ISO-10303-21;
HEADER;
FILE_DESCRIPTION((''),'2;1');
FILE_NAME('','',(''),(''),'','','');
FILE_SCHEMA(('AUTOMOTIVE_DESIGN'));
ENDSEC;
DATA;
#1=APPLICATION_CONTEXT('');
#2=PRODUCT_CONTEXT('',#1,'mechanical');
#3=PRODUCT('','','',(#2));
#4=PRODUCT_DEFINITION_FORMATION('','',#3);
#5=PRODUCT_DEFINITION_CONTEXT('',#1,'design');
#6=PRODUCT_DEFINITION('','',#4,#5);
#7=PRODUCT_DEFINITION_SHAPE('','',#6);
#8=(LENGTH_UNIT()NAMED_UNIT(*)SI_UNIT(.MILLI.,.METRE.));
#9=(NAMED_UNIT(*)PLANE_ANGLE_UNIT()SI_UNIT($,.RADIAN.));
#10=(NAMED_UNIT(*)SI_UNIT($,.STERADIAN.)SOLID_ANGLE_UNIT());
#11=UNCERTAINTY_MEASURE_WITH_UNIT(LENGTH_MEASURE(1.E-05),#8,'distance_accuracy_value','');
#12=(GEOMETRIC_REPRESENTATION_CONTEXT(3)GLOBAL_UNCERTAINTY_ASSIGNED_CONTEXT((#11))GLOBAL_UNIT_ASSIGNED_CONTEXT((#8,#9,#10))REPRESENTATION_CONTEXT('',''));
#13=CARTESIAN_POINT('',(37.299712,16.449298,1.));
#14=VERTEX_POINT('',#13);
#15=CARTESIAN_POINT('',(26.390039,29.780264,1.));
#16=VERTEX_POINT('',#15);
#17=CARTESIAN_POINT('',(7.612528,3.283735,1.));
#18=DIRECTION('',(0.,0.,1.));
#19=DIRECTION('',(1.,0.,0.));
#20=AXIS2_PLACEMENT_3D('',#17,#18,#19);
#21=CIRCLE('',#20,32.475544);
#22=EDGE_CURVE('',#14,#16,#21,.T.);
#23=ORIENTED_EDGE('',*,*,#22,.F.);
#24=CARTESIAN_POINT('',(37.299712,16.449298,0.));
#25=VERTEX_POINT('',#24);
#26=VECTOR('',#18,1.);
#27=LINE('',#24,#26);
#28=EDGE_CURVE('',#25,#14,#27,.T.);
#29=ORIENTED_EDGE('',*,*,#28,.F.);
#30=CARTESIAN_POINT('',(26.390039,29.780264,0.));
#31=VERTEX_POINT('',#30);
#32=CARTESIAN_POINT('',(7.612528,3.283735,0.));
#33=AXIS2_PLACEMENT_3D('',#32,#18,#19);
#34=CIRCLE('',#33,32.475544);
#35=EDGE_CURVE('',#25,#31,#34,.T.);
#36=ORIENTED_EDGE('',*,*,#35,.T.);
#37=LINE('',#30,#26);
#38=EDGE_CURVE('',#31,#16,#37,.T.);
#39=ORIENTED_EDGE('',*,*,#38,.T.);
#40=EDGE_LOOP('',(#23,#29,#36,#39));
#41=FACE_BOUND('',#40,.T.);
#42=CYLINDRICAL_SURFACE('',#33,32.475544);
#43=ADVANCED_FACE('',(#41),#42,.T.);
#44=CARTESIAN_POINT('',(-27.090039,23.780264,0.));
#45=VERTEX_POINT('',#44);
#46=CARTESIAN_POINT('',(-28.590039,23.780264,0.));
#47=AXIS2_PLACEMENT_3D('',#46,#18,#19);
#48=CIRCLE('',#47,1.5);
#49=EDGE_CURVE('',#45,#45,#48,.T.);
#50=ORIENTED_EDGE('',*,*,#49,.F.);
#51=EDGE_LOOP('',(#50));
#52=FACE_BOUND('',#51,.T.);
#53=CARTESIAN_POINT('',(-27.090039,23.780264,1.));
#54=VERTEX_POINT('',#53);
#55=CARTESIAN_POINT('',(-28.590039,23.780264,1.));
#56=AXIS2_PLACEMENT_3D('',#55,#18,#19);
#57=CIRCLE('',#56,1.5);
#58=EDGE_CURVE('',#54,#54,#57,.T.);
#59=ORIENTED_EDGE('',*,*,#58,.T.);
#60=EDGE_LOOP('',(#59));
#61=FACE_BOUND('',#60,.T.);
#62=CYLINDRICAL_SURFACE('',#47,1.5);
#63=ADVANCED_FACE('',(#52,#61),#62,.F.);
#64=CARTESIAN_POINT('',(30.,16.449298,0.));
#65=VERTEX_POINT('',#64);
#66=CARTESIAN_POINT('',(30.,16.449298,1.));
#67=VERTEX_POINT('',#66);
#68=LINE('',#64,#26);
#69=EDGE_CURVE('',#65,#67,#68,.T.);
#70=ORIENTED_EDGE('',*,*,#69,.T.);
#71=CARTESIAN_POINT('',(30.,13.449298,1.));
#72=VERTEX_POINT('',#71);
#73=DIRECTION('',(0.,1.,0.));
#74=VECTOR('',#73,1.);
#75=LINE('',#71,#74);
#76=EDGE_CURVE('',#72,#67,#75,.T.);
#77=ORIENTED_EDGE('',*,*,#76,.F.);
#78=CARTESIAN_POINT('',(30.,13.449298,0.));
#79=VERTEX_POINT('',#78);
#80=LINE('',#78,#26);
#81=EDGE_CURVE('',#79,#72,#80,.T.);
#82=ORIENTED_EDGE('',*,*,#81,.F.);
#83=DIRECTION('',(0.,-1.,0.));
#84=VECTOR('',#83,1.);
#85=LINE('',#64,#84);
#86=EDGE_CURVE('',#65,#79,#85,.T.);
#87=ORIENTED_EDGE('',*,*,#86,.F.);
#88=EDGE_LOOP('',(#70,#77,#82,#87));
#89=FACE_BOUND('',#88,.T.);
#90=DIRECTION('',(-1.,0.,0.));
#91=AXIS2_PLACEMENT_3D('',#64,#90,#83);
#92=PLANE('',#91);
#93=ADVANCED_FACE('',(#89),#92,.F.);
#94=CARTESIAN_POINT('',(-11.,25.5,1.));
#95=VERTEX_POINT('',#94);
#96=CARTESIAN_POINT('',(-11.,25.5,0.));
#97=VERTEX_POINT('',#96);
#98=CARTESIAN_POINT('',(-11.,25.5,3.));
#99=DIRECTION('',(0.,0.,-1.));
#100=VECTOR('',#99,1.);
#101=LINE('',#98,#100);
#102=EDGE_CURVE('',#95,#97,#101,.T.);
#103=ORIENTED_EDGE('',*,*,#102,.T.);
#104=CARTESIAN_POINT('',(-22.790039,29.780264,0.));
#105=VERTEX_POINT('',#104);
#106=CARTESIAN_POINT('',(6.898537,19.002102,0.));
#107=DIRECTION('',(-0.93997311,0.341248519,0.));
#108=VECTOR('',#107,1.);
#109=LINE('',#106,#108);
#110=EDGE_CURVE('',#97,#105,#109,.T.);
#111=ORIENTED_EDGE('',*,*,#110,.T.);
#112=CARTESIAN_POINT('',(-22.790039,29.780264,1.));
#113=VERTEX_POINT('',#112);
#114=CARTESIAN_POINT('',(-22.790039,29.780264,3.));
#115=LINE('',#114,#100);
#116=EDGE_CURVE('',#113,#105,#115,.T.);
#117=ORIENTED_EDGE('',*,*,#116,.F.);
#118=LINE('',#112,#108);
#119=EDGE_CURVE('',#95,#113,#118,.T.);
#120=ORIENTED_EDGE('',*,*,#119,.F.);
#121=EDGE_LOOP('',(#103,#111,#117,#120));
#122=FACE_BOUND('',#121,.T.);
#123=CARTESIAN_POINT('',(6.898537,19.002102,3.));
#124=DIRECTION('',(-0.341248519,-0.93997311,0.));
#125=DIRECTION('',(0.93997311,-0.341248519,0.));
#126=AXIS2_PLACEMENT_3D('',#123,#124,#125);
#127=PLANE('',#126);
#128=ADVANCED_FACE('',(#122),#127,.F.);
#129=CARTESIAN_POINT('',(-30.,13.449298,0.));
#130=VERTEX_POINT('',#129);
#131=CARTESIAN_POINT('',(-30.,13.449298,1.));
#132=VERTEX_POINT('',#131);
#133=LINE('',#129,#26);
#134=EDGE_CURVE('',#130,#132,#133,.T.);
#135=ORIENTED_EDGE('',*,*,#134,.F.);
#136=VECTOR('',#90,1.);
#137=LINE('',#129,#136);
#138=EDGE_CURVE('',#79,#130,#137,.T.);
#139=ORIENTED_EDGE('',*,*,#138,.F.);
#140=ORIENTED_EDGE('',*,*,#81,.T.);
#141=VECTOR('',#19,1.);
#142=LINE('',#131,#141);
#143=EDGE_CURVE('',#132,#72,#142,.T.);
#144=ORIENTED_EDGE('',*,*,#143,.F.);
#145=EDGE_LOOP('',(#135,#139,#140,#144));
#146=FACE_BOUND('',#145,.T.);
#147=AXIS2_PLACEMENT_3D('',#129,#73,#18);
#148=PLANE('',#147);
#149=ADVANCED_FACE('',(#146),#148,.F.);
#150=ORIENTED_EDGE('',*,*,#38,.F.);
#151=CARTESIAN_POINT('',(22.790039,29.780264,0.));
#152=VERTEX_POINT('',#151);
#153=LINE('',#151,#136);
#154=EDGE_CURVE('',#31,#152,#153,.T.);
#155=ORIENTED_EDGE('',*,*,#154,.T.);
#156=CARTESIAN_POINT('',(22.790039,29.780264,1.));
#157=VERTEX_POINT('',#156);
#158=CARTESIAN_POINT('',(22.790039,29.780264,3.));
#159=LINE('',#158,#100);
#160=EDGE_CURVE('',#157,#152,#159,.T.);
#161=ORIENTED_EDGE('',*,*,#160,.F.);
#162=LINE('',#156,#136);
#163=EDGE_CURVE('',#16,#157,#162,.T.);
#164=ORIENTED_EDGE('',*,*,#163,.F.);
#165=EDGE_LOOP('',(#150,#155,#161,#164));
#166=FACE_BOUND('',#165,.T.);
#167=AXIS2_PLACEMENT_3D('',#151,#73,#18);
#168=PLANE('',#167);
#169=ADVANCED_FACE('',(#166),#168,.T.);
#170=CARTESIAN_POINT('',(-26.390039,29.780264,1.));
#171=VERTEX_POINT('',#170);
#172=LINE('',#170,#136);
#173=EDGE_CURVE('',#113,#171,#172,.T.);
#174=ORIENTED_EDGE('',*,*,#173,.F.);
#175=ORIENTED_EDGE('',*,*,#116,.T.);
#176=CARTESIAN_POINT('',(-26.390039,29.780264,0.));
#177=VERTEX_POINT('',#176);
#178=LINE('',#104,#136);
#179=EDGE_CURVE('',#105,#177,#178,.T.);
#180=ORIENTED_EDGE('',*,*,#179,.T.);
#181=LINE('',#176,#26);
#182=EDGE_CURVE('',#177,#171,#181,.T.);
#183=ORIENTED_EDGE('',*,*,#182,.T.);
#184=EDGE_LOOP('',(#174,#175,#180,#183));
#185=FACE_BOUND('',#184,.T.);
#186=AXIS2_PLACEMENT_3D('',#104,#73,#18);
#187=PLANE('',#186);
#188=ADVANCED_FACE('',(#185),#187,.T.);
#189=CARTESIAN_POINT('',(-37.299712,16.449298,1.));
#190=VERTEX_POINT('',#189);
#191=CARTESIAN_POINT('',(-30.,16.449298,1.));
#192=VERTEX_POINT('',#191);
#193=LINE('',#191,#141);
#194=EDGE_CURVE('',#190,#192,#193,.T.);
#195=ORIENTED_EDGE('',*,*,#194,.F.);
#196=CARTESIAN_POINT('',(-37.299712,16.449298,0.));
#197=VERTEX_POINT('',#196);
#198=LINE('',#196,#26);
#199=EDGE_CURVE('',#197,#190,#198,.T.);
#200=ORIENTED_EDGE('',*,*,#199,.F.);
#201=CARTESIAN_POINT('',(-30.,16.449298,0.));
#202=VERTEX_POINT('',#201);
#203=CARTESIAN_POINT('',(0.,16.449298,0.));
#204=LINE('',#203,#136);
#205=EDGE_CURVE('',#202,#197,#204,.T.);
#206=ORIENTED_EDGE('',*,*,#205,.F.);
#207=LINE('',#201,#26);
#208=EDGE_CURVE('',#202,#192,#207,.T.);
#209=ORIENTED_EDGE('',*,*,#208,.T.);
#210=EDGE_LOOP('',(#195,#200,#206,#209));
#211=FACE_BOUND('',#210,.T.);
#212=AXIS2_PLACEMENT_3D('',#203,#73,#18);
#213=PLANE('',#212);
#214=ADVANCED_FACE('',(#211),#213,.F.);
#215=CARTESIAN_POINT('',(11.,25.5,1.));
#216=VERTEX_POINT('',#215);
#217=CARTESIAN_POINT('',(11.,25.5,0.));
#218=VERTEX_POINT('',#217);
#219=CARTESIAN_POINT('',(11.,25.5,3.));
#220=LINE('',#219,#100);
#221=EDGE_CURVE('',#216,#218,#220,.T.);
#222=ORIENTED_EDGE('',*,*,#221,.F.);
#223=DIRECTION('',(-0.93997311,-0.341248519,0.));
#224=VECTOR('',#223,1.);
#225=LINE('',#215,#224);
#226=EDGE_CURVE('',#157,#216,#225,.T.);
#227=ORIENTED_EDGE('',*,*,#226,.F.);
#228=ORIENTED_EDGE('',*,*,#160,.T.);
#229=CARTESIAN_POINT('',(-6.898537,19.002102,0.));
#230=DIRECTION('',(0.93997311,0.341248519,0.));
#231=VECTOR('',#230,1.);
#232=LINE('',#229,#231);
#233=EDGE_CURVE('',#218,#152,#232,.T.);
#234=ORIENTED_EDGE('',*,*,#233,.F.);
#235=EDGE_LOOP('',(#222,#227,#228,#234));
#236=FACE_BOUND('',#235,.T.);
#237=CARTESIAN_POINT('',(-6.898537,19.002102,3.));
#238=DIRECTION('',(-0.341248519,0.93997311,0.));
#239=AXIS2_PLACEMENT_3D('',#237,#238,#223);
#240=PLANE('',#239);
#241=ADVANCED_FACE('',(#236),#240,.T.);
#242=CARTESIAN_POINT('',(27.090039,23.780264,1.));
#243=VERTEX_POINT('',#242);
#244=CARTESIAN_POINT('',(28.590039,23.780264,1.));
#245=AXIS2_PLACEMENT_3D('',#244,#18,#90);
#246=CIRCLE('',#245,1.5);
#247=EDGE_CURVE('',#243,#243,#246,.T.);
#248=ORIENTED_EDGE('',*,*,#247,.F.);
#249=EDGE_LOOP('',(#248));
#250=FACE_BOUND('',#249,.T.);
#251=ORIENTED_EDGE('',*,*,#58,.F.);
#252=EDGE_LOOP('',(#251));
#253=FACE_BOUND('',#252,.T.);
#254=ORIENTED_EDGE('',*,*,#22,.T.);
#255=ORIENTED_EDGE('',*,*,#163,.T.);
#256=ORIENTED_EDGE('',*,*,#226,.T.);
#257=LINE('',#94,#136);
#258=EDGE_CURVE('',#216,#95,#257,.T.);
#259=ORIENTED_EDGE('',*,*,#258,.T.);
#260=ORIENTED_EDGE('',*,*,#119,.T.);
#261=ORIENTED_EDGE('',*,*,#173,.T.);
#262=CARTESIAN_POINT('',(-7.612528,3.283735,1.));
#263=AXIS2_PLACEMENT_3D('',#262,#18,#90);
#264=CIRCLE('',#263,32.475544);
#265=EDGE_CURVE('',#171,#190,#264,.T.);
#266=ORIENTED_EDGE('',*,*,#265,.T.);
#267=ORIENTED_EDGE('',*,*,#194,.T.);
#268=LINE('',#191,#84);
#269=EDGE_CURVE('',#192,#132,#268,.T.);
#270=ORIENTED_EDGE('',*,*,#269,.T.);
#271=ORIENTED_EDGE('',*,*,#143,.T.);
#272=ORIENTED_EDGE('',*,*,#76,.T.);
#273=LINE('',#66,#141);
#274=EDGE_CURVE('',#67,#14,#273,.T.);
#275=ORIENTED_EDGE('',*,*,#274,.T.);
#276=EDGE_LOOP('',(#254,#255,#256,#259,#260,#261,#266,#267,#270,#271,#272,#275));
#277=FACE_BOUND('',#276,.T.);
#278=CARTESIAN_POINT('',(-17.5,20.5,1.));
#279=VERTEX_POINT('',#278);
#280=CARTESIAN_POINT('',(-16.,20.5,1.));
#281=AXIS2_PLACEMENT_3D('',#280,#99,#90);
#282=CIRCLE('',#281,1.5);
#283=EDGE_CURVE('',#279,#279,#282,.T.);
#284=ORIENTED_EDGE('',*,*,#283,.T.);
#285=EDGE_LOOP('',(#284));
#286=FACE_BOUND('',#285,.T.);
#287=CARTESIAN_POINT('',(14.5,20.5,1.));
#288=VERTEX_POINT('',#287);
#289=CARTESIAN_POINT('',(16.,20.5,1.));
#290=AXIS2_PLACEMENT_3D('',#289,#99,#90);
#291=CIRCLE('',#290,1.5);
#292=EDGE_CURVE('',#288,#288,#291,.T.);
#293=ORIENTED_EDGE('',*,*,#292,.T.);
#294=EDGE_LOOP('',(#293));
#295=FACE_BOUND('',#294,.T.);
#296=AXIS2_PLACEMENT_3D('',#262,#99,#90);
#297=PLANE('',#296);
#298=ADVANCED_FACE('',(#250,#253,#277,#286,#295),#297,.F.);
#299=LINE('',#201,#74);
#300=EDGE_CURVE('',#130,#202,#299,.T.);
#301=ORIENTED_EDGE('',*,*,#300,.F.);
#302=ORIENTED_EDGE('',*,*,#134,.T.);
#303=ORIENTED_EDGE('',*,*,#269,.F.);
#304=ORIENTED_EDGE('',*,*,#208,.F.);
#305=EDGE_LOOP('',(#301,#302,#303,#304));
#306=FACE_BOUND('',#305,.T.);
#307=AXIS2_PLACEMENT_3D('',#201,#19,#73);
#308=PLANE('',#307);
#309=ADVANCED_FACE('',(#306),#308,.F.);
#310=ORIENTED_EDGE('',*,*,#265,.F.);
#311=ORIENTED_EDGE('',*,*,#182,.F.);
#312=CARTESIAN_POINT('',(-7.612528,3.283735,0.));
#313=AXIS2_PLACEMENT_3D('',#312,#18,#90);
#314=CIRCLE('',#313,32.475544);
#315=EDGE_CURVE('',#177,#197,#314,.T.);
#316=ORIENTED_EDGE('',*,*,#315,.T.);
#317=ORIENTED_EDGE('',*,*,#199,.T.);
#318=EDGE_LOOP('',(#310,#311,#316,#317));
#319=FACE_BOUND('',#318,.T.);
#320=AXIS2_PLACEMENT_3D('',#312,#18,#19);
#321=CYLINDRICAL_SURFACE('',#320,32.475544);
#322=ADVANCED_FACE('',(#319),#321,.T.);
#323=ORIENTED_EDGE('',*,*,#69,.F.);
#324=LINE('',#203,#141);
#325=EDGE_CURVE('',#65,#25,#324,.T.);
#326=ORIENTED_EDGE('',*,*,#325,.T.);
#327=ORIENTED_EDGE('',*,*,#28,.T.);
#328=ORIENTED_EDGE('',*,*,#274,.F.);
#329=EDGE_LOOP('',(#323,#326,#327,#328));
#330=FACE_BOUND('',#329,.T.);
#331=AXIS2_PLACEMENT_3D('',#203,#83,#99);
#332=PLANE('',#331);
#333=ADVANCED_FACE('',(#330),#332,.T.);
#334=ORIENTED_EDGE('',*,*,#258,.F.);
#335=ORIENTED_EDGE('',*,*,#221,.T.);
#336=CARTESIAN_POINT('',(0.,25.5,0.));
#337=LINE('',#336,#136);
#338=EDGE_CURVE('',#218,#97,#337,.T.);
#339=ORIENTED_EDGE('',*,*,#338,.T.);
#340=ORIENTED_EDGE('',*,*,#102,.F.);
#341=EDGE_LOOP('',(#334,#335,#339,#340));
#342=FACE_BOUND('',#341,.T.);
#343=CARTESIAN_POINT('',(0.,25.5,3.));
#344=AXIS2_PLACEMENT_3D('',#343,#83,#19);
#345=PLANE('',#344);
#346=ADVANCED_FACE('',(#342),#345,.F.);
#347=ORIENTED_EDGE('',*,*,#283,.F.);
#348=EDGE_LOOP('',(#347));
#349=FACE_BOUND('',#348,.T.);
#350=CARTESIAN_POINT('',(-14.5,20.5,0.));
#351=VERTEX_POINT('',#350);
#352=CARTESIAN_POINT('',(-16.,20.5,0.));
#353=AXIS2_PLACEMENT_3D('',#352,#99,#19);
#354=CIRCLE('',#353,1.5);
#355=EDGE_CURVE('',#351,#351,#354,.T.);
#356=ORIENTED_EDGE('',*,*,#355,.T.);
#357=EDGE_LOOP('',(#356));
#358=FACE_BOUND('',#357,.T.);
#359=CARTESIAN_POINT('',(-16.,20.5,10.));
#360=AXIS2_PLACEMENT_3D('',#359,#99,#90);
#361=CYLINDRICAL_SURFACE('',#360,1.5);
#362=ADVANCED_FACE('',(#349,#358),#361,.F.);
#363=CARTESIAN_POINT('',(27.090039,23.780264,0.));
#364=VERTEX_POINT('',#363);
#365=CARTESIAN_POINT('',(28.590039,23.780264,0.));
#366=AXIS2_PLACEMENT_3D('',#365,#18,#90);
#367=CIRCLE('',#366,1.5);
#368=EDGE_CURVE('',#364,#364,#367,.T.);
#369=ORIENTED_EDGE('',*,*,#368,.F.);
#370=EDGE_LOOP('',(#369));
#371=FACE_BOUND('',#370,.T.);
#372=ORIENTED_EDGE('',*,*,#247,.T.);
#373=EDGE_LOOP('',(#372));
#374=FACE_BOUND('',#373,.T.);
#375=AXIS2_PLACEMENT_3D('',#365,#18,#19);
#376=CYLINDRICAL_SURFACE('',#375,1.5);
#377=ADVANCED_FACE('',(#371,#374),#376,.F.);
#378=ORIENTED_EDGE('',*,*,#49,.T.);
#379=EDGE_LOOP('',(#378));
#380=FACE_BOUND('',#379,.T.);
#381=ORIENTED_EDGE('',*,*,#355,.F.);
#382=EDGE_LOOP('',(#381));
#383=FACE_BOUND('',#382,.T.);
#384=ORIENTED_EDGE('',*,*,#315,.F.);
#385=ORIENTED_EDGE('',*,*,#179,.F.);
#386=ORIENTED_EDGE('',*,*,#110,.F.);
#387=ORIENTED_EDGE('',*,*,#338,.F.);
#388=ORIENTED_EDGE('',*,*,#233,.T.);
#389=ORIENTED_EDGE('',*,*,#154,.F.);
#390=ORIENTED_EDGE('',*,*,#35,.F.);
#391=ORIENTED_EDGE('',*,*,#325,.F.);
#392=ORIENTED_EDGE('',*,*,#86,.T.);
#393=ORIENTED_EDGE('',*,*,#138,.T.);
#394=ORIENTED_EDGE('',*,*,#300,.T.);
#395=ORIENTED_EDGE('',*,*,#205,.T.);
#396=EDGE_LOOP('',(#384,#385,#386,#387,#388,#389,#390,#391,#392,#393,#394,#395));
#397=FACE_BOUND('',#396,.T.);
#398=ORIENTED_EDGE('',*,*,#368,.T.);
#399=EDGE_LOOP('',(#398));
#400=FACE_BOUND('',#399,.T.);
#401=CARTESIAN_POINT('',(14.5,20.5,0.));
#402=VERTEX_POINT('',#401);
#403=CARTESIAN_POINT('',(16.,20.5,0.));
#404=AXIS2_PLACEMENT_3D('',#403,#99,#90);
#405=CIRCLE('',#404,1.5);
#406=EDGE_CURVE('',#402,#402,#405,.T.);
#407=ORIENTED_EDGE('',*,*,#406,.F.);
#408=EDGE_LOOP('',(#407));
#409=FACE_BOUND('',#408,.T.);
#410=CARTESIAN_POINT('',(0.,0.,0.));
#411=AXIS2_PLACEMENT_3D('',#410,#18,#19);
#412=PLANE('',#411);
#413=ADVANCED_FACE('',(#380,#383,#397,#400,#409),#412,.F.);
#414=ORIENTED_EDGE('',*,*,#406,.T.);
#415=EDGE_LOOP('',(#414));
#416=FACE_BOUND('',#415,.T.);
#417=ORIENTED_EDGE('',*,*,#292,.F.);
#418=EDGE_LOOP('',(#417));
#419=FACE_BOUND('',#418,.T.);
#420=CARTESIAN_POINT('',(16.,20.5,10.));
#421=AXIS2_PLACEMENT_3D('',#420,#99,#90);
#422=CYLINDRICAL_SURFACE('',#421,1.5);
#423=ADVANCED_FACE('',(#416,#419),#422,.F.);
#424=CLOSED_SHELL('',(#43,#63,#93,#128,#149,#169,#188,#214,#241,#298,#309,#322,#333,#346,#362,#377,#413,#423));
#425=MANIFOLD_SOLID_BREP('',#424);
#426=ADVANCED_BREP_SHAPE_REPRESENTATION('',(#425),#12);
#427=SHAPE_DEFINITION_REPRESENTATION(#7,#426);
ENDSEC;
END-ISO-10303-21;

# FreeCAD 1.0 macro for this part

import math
import FreeCAD as App
import Part
import Sketcher

V = App.Vector
Q = App.Units.Quantity


def add_polygon(sketch, points):
    """Adds a closed chain of lines whose ends are joined by coincident constraints."""
    first, n = sketch.GeometryCount, len(points)
    for a, b in zip(points, points[1:] + points[:1]):
        sketch.addGeometry(Part.LineSegment(App.Vector(*a, 0), App.Vector(*b, 0)), False)
    for i in range(n):
        sketch.addConstraint(Sketcher.Constraint("Coincident", first + i, 2, first + (i + 1) % n, 1))

doc = App.newDocument("Part")
body = doc.addObject("PartDesign::Body", "Body")

# Sketch on XY plane
sketch1 = body.newObject("Sketcher::SketchObject", "Sketch")
sketch1.AttachmentSupport = (doc.getObject("XY_Plane"), [""])
sketch1.MapMode = "FlatFace"
sketch1.addGeometry(Part.LineSegment(V(-11, 26, 0), V(-23, 30, 0)), False)
sketch1.addGeometry(Part.ArcOfCircle(Part.Circle(V(0, 0, 0), V(0, 0, 1), 38), math.radians(127), math.radians(413)), False)
sketch1.addGeometry(Part.LineSegment(V(23, 30, 0), V(11, 26, 0)), False)
sketch1.addGeometry(Part.LineSegment(V(11, 26, 0), V(-11, 26, 0)), False)
sketch1.addConstraint(Sketcher.Constraint("Coincident", 0, 2, 1, 1))
sketch1.addConstraint(Sketcher.Constraint("Coincident", 1, 2, 2, 1))
sketch1.addConstraint(Sketcher.Constraint("Coincident", 2, 2, 3, 1))
sketch1.addConstraint(Sketcher.Constraint("Coincident", 3, 2, 0, 1))
sketch1.addConstraint(Sketcher.Constraint("Horizontal", 3))
sketch1.addConstraint(Sketcher.Constraint("Coincident", 1, 3, -1, 1))
sketch1.addConstraint(Sketcher.Constraint("Horizontal", 0, 2, 1, 2))
sketch1.addConstraint(Sketcher.Constraint("Equal", 0, 2))
sketch1.addConstraint(Sketcher.Constraint("Radius", 1, Q("37.5 mm")))
sketch1.addConstraint(Sketcher.Constraint("DistanceX", 3, 2, 3, 1, Q("22 mm")))
sketch1.addConstraint(Sketcher.Constraint("DistanceY", -1, 1, 2, 2, Q("25.5 mm")))
sketch1.addConstraint(Sketcher.Constraint("DistanceX", 0, 2, -1, 1, Q("22.790039 mm")))
pad1 = body.newObject("PartDesign::Pad", "Pad")
pad1.Profile = sketch1
pad1.Length = 3

# Sketch on XY plane
sketch2 = body.newObject("Sketcher::SketchObject", "Sketch001")
sketch2.AttachmentSupport = (doc.getObject("XY_Plane"), [""])
sketch2.MapMode = "FlatFace"
sketch2.AttachmentOffset = App.Placement(V(0, 0, 3), App.Rotation())
sketch2.addGeometry(Part.Circle(V(-25.4, 10.5, 0), V(0, 0, 1), 1.5), False)
sketch2.addGeometry(Part.Circle(V(-25.4, -10.5, 0), V(0, 0, 1), 1.5), False)
sketch2.addGeometry(Part.Circle(V(25.4, -10.5, 0), V(0, 0, 1), 1.5), False)
sketch2.addGeometry(Part.Circle(V(25.4, 10.5, 0), V(0, 0, 1), 1.5), False)
sketch2.addConstraint(Sketcher.Constraint("Equal", 0, 1))
sketch2.addConstraint(Sketcher.Constraint("Equal", 1, 2))
sketch2.addConstraint(Sketcher.Constraint("Equal", 2, 3))
sketch2.addConstraint(Sketcher.Constraint("Symmetric", 1, 3, 2, 3, -2))
sketch2.addConstraint(Sketcher.Constraint("Symmetric", 0, 3, 3, 3, -2))
sketch2.addConstraint(Sketcher.Constraint("Diameter", 0, Q("3 mm")))
sketch2.addConstraint(Sketcher.Constraint("DistanceX", 0, 3, -1, 1, Q("25.4 mm")))
sketch2.addConstraint(Sketcher.Constraint("DistanceY", 1, 3, 0, 3, Q("20.99 mm")))
sketch2.addConstraint(Sketcher.Constraint("DistanceX", 1, 3, -1, 1, Q("25.399982 mm")))
sketch2.addConstraint(Sketcher.Constraint("DistanceY", -1, 1, 0, 3, Q("10.496905 mm")))
pocket1 = body.newObject("PartDesign::Pocket", "Pocket")
pocket1.Profile = sketch2
pocket1.Length = 3

# Sketch on XY plane
sketch3 = body.newObject("Sketcher::SketchObject", "Sketch002")
sketch3.AttachmentSupport = (doc.getObject("XY_Plane"), [""])
sketch3.MapMode = "FlatFace"
sketch3.AttachmentOffset = App.Placement(V(0, 0, -7), App.Rotation())
sketch3.addGeometry(Part.LineSegment(V(-31, -21, 0), V(-31, 21, 0)), False)
sketch3.addGeometry(Part.ArcOfCircle(Part.Circle(V(0, 0, 0), V(0, 0, 1), 38), math.radians(145), math.radians(215)), False)
sketch3.addGeometry(Part.LineSegment(V(31, 21, 0), V(31, -21, 0)), False)
sketch3.addGeometry(Part.ArcOfCircle(Part.Circle(V(0, 0, 0), V(0, 0, 1), 38), math.radians(-35), math.radians(35)), False)
sketch3.addConstraint(Sketcher.Constraint("Coincident", 0, 1, 1, 2))
sketch3.addConstraint(Sketcher.Constraint("Coincident", 1, 1, 0, 2))
sketch3.addConstraint(Sketcher.Constraint("Coincident", 2, 1, 3, 2))
sketch3.addConstraint(Sketcher.Constraint("Coincident", 3, 1, 2, 2))
sketch3.addConstraint(Sketcher.Constraint("Vertical", 0))
sketch3.addConstraint(Sketcher.Constraint("Vertical", 2))
sketch3.addConstraint(Sketcher.Constraint("Coincident", 1, 3, -1, 1))
sketch3.addConstraint(Sketcher.Constraint("Coincident", 3, 3, -1, 1))
sketch3.addConstraint(Sketcher.Constraint("Equal", 1, 3))
sketch3.addConstraint(Sketcher.Constraint("Horizontal", 1, 1, 2, 1))
sketch3.addConstraint(Sketcher.Constraint("Radius", 1, Q("37.5 mm")))
sketch3.addConstraint(Sketcher.Constraint("DistanceX", 0, 1, -1, 1, Q("30.76 mm")))
pocket2 = body.newObject("PartDesign::Pocket", "Pocket001")
pocket2.Profile = sketch3
pocket2.Length = 10
pocket2.Reversed = True

# Sketch on XY plane
sketch4 = body.newObject("Sketcher::SketchObject", "Sketch003")
sketch4.AttachmentSupport = (doc.getObject("XY_Plane"), [""])
sketch4.MapMode = "FlatFace"
sketch4.addGeometry(Part.LineSegment(V(-30.8, -21.4, 0), V(-30.8, -16.4, 0)), False)
sketch4.addGeometry(Part.LineSegment(V(-30.8, -16.4, 0), V(-33.7, -16.4, 0)), False)
sketch4.addGeometry(Part.ArcOfCircle(Part.Circle(V(0, 0, 0), V(0, 0, 1), 37.5), math.radians(-153.98), math.radians(-145.11)), False)
sketch4.addGeometry(Part.LineSegment(V(-33.7, 16.4, 0), V(-30.8, 16.4, 0)), False)
sketch4.addGeometry(Part.LineSegment(V(-30.8, 16.4, 0), V(-30.8, 21.4, 0)), False)
sketch4.addGeometry(Part.ArcOfCircle(Part.Circle(V(0, 0, 0), V(0, 0, 1), 37.5), math.radians(145.11), math.radians(153.98)), False)
sketch4.addGeometry(Part.LineSegment(V(30.8, 21.4, 0), V(30.8, 16.4, 0)), False)
sketch4.addGeometry(Part.LineSegment(V(30.8, 16.4, 0), V(33.7, 16.4, 0)), False)
sketch4.addGeometry(Part.ArcOfCircle(Part.Circle(V(0, 0, 0), V(0, 0, 1), 37.5), math.radians(26.02), math.radians(34.89)), False)
sketch4.addGeometry(Part.LineSegment(V(30.8, -16.4, 0), V(30.8, -21.4, 0)), False)
sketch4.addGeometry(Part.ArcOfCircle(Part.Circle(V(0, 0, 0), V(0, 0, 1), 37.5), math.radians(-34.89), math.radians(-26.02)), False)
sketch4.addGeometry(Part.LineSegment(V(33.7, -16.4, 0), V(30.8, -16.4, 0)), False)
sketch4.addConstraint(Sketcher.Constraint("Coincident", 0, 2, 1, 1))
sketch4.addConstraint(Sketcher.Constraint("Coincident", 1, 2, 2, 1))
sketch4.addConstraint(Sketcher.Constraint("Coincident", 2, 2, 0, 1))
sketch4.addConstraint(Sketcher.Constraint("Coincident", 3, 2, 4, 1))
sketch4.addConstraint(Sketcher.Constraint("Coincident", 4, 2, 5, 1))
sketch4.addConstraint(Sketcher.Constraint("Coincident", 5, 2, 3, 1))
sketch4.addConstraint(Sketcher.Constraint("Coincident", 6, 2, 7, 1))
sketch4.addConstraint(Sketcher.Constraint("Coincident", 7, 2, 8, 1))
sketch4.addConstraint(Sketcher.Constraint("Coincident", 8, 2, 6, 1))
sketch4.addConstraint(Sketcher.Constraint("Coincident", 9, 2, 10, 1))
sketch4.addConstraint(Sketcher.Constraint("Coincident", 10, 2, 11, 1))
sketch4.addConstraint(Sketcher.Constraint("Coincident", 11, 2, 9, 1))
sketch4.addConstraint(Sketcher.Constraint("Vertical", 0))
sketch4.addConstraint(Sketcher.Constraint("Horizontal", 1))
sketch4.addConstraint(Sketcher.Constraint("Horizontal", 3))
sketch4.addConstraint(Sketcher.Constraint("Vertical", 4))
sketch4.addConstraint(Sketcher.Constraint("Vertical", 6))
sketch4.addConstraint(Sketcher.Constraint("Horizontal", 7))
sketch4.addConstraint(Sketcher.Constraint("Vertical", 9))
sketch4.addConstraint(Sketcher.Constraint("Horizontal", 11))
sketch4.addConstraint(Sketcher.Constraint("Coincident", 2, 3, -1, 1))
sketch4.addConstraint(Sketcher.Constraint("Coincident", 5, 3, -1, 1))
sketch4.addConstraint(Sketcher.Constraint("Coincident", 8, 3, -1, 1))
sketch4.addConstraint(Sketcher.Constraint("Coincident", 10, 3, -1, 1))
sketch4.addConstraint(Sketcher.Constraint("Equal", 2, 5))
sketch4.addConstraint(Sketcher.Constraint("Equal", 5, 8))
sketch4.addConstraint(Sketcher.Constraint("Equal", 8, 10))
sketch4.addConstraint(Sketcher.Constraint("Symmetric", 0, 2, 6, 2, -1, 1))
sketch4.addConstraint(Sketcher.Constraint("Symmetric", 3, 2, 11, 2, -1, 1))
sketch4.addConstraint(Sketcher.Constraint("Symmetric", 3, 2, 6, 2, -2))
sketch4.addConstraint(Sketcher.Constraint("Radius", 2, Q("37.5 mm")))
sketch4.addConstraint(Sketcher.Constraint("DistanceY", 0, 1, 0, 2, Q("5 mm")))
sketch4.addConstraint(Sketcher.Constraint("DistanceX", 0, 2, -1, 1, Q("30.76 mm")))
pad2 = body.newObject("PartDesign::Pad", "Pad001")
pad2.Profile = sketch4
pad2.Length = 3

# Sketch on XY plane
sketch5 = body.newObject("Sketcher::SketchObject", "Sketch004")
sketch5.AttachmentSupport = (doc.getObject("XY_Plane"), [""])
sketch5.MapMode = "FlatFace"
sketch5.AttachmentOffset = App.Placement(V(0, 0, 3), App.Rotation())
add_polygon(sketch5, [(-30.8, 16.4), (-30.8, -16.4), (-30.2, -16.4), (-30.2, 16.4)])  # lines 0-3
add_polygon(sketch5, [(30.2, 16.4), (30.2, -16.4), (30.8, -16.4), (30.8, 16.4)])  # lines 4-7
sketch5.addConstraint(Sketcher.Constraint("Vertical", 0))
sketch5.addConstraint(Sketcher.Constraint("Horizontal", 1))
sketch5.addConstraint(Sketcher.Constraint("Vertical", 2))
sketch5.addConstraint(Sketcher.Constraint("Horizontal", 3))
sketch5.addConstraint(Sketcher.Constraint("Vertical", 4))
sketch5.addConstraint(Sketcher.Constraint("Horizontal", 5))
sketch5.addConstraint(Sketcher.Constraint("Vertical", 6))
sketch5.addConstraint(Sketcher.Constraint("Horizontal", 7))
sketch5.addConstraint(Sketcher.Constraint("Symmetric", 2, 2, 4, 2, -1, 1))
sketch5.addConstraint(Sketcher.Constraint("Symmetric", 0, 2, 6, 2, -1, 1))
sketch5.addConstraint(Sketcher.Constraint("Horizontal", 1, 2, 4, 2))
sketch5.addConstraint(Sketcher.Constraint("DistanceX", 1, 1, 1, 2, Q("0.56 mm")))
sketch5.addConstraint(Sketcher.Constraint("DistanceX", 1, 2, -1, 1, Q("30.2 mm")))
sketch5.addConstraint(Sketcher.Constraint("DistanceY", 0, 2, -1, 1, Q("16.449298 mm")))
pocket3 = body.newObject("PartDesign::Pocket", "Pocket002")
pocket3.Profile = sketch5
pocket3.Length = 3

# Sketch on XY plane
sketch6 = body.newObject("Sketcher::SketchObject", "Sketch005")
sketch6.AttachmentSupport = (doc.getObject("XY_Plane"), [""])
sketch6.MapMode = "FlatFace"
sketch6.AttachmentOffset = App.Placement(V(0, 0, 3), App.Rotation())
add_polygon(sketch6, [(-30.2, 16.45), (-30.2, -16.45), (-30, -16.45), (-30, 16.45)])  # lines 0-3
add_polygon(sketch6, [(30, 16.45), (30, -16.45), (30.2, -16.45), (30.2, 16.45)])  # lines 4-7
sketch6.addConstraint(Sketcher.Constraint("Vertical", 0))
sketch6.addConstraint(Sketcher.Constraint("Horizontal", 1))
sketch6.addConstraint(Sketcher.Constraint("Vertical", 2))
sketch6.addConstraint(Sketcher.Constraint("Horizontal", 3))
sketch6.addConstraint(Sketcher.Constraint("Vertical", 4))
sketch6.addConstraint(Sketcher.Constraint("Horizontal", 5))
sketch6.addConstraint(Sketcher.Constraint("Vertical", 6))
sketch6.addConstraint(Sketcher.Constraint("Horizontal", 7))
sketch6.addConstraint(Sketcher.Constraint("Symmetric", 2, 2, 4, 2, -1, 1))
sketch6.addConstraint(Sketcher.Constraint("Symmetric", 0, 2, 6, 2, -1, 1))
sketch6.addConstraint(Sketcher.Constraint("Horizontal", 1, 2, 4, 2))
sketch6.addConstraint(Sketcher.Constraint("DistanceX", 1, 1, 1, 2, Q("0.2 mm")))
sketch6.addConstraint(Sketcher.Constraint("DistanceX", 1, 2, -1, 1, Q("30 mm")))
sketch6.addConstraint(Sketcher.Constraint("DistanceY", 0, 2, -1, 1, Q("16.449298 mm")))
pocket4 = body.newObject("PartDesign::Pocket", "Pocket003")
pocket4.Profile = sketch6
pocket4.Length = 3

# Sketch on XY plane
sketch7 = body.newObject("Sketcher::SketchObject", "Sketch006")
sketch7.AttachmentSupport = (doc.getObject("XY_Plane"), [""])
sketch7.MapMode = "FlatFace"
sketch7.AttachmentOffset = App.Placement(V(0, 0, 3), App.Rotation())
sketch7.addGeometry(Part.Circle(V(-19.1, -21.6, 0), V(0, 0, 1), 2), False)
sketch7.addGeometry(Part.Circle(V(19.1, -21.6, 0), V(0, 0, 1), 2), False)
sketch7.addConstraint(Sketcher.Constraint("Equal", 0, 1))
sketch7.addConstraint(Sketcher.Constraint("Symmetric", 0, 3, 1, 3, -2))
sketch7.addConstraint(Sketcher.Constraint("Diameter", 0, Q("4 mm")))
sketch7.addConstraint(Sketcher.Constraint("DistanceX", 0, 3, 1, 3, Q("38.3 mm")))
sketch7.addConstraint(Sketcher.Constraint("DistanceY", 0, 3, -1, 1, Q("21.55 mm")))
pocket5 = body.newObject("PartDesign::Pocket", "Pocket004")
pocket5.Profile = sketch7
pocket5.Length = 3

# Sketch on XY plane
sketch8 = body.newObject("Sketcher::SketchObject", "Sketch007")
sketch8.AttachmentSupport = (doc.getObject("XY_Plane"), [""])
sketch8.MapMode = "FlatFace"
sketch8.addGeometry(Part.LineSegment(V(-37.3, 16.4, 0), V(-33.7, 16.4, 0)), False)
sketch8.addGeometry(Part.ArcOfCircle(Part.Circle(V(0, 0, 0), V(0, 0, 1), 37.5), math.radians(127), math.radians(154)), False)
sketch8.addGeometry(Part.LineSegment(V(-22.8, 29.8, 0), V(-26.4, 29.8, 0)), False)
sketch8.addGeometry(Part.ArcOfCircle(Part.Circle(V(-7.6, 3.3, 0), V(0, 0, 1), 32.5), math.radians(125), math.radians(156)), False)
sketch8.addGeometry(Part.LineSegment(V(33.7, 16.4, 0), V(37.3, 16.4, 0)), False)
sketch8.addGeometry(Part.ArcOfCircle(Part.Circle(V(7.6, 3.3, 0), V(0, 0, 1), 32.5), math.radians(24), math.radians(55)), False)
sketch8.addGeometry(Part.LineSegment(V(26.4, 29.8, 0), V(22.8, 29.8, 0)), False)
sketch8.addGeometry(Part.ArcOfCircle(Part.Circle(V(0, 0, 0), V(0, 0, 1), 37.5), math.radians(26), math.radians(53)), False)
sketch8.addConstraint(Sketcher.Constraint("Coincident", 0, 2, 1, 2))
sketch8.addConstraint(Sketcher.Constraint("Coincident", 1, 1, 2, 1))
sketch8.addConstraint(Sketcher.Constraint("Coincident", 2, 2, 3, 1))
sketch8.addConstraint(Sketcher.Constraint("Coincident", 3, 2, 0, 1))
sketch8.addConstraint(Sketcher.Constraint("Coincident", 4, 2, 5, 1))
sketch8.addConstraint(Sketcher.Constraint("Coincident", 5, 2, 6, 1))
sketch8.addConstraint(Sketcher.Constraint("Coincident", 6, 2, 7, 2))
sketch8.addConstraint(Sketcher.Constraint("Coincident", 7, 1, 4, 1))
sketch8.addConstraint(Sketcher.Constraint("Horizontal", 0))
sketch8.addConstraint(Sketcher.Constraint("Horizontal", 2))
sketch8.addConstraint(Sketcher.Constraint("Horizontal", 4))
sketch8.addConstraint(Sketcher.Constraint("Horizontal", 6))
sketch8.addConstraint(Sketcher.Constraint("Coincident", 1, 3, -1, 1))
sketch8.addConstraint(Sketcher.Constraint("Coincident", 7, 3, -1, 1))
sketch8.addConstraint(Sketcher.Constraint("Equal", 3, 5))
sketch8.addConstraint(Sketcher.Constraint("Equal", 1, 7))
sketch8.addConstraint(Sketcher.Constraint("Symmetric", 3, 3, 5, 3, -2))
sketch8.addConstraint(Sketcher.Constraint("Horizontal", 3, 2, 4, 2))
sketch8.addConstraint(Sketcher.Constraint("Horizontal", 2, 2, 5, 2))
sketch8.addConstraint(Sketcher.Constraint("Equal", 0, 2))
sketch8.addConstraint(Sketcher.Constraint("Radius", 1, Q("37.5 mm")))
sketch8.addConstraint(Sketcher.Constraint("DistanceX", 0, 1, 0, 2, Q("3.6 mm")))
sketch8.addConstraint(Sketcher.Constraint("Radius", 3, Q("32.475544 mm")))
sketch8.addConstraint(Sketcher.Constraint("DistanceY", -1, 1, 0, 2, Q("16.449298 mm")))
sketch8.addConstraint(Sketcher.Constraint("DistanceX", 1, 1, -1, 1, Q("22.790039 mm")))
pad3 = body.newObject("PartDesign::Pad", "Pad002")
pad3.Profile = sketch8
pad3.Length = 3

# Sketch on XY plane
sketch9 = body.newObject("Sketcher::SketchObject", "Sketch008")
sketch9.AttachmentSupport = (doc.getObject("XY_Plane"), [""])
sketch9.MapMode = "FlatFace"
sketch9.addGeometry(Part.LineSegment(V(5, -37, 0), V(-5, -37, 0)), False)
sketch9.addGeometry(Part.ArcOfCircle(Part.Circle(V(0, 0, 0), V(0, 0, 1), 37), math.radians(-97.25), math.radians(-82.75)), False)
sketch9.addConstraint(Sketcher.Constraint("Coincident", 0, 1, 1, 2))
sketch9.addConstraint(Sketcher.Constraint("Coincident", 1, 1, 0, 2))
sketch9.addConstraint(Sketcher.Constraint("Horizontal", 0))
sketch9.addConstraint(Sketcher.Constraint("Coincident", 1, 3, -1, 1))
sketch9.addConstraint(Sketcher.Constraint("Radius", 1, Q("37.5 mm")))
sketch9.addConstraint(Sketcher.Constraint("DistanceY", 0, 1, -1, 1, Q("37.2 mm")))
pocket6 = body.newObject("PartDesign::Pocket", "Pocket005")
pocket6.Profile = sketch9
pocket6.Length = 3
pocket6.Reversed = True

# Sketch on XY plane
sketch10 = body.newObject("Sketcher::SketchObject", "Sketch009")
sketch10.AttachmentSupport = (doc.getObject("XY_Plane"), [""])
sketch10.MapMode = "FlatFace"
sketch10.addGeometry(Part.ArcOfCircle(Part.Circle(V(0, 0, 0), V(0, 0, 1), 37.5), math.radians(-154), math.radians(-97)), False)
sketch10.addGeometry(Part.LineSegment(V(-33.7, -16.4, 0), V(-37.3, -16.4, 0)), False)
sketch10.addGeometry(Part.ArcOfCircle(Part.Circle(V(0, 6.2, 0), V(0, 0, 1), 43.6), math.radians(-149), math.radians(-96)), False)
sketch10.addGeometry(Part.ArcOfCircle(Part.Circle(V(0, 0, 0), V(0, 0, 1), 37.5), math.radians(-83), math.radians(-26)), False)
sketch10.addGeometry(Part.ArcOfCircle(Part.Circle(V(0, 6.2, 0), V(0, 0, 1), 43.6), math.radians(-84), math.radians(-31)), False)
sketch10.addGeometry(Part.LineSegment(V(37.3, -16.4, 0), V(33.7, -16.4, 0)), False)
sketch10.addGeometry(Part.LineSegment(V(4.7, -37.2, 0), V(-4.7, -37.2, 0)), False)
sketch10.addGeometry(Part.ArcOfCircle(Part.Circle(V(0, 6.2, 0), V(0, 0, 1), 43.6), math.radians(-96.23), math.radians(-83.77)), False)
sketch10.addConstraint(Sketcher.Constraint("Coincident", 0, 1, 1, 1))
sketch10.addConstraint(Sketcher.Constraint("Coincident", 1, 2, 2, 1))
sketch10.addConstraint(Sketcher.Constraint("Coincident", 2, 2, 0, 2))
sketch10.addConstraint(Sketcher.Constraint("Coincident", 3, 1, 4, 1))
sketch10.addConstraint(Sketcher.Constraint("Coincident", 4, 2, 5, 1))
sketch10.addConstraint(Sketcher.Constraint("Coincident", 5, 2, 3, 2))
sketch10.addConstraint(Sketcher.Constraint("Coincident", 6, 1, 7, 2))
sketch10.addConstraint(Sketcher.Constraint("Coincident", 7, 1, 6, 2))
sketch10.addConstraint(Sketcher.Constraint("Horizontal", 1))
sketch10.addConstraint(Sketcher.Constraint("Horizontal", 5))
sketch10.addConstraint(Sketcher.Constraint("Horizontal", 6))
sketch10.addConstraint(Sketcher.Constraint("Coincident", 0, 3, -1, 1))
sketch10.addConstraint(Sketcher.Constraint("Coincident", 3, 3, -1, 1))
sketch10.addConstraint(Sketcher.Constraint("Coincident", 4, 3, 2, 3))
sketch10.addConstraint(Sketcher.Constraint("Coincident", 7, 3, 2, 3))
sketch10.addConstraint(Sketcher.Constraint("Coincident", 6, 1, 3, 1))
sketch10.addConstraint(Sketcher.Constraint("Coincident", 7, 1, 2, 2))
sketch10.addConstraint(Sketcher.Constraint("Equal", 0, 3))
sketch10.addConstraint(Sketcher.Constraint("Horizontal", 1, 2, 4, 2))
sketch10.addConstraint(Sketcher.Constraint("Radius", 0, Q("37.5 mm")))
sketch10.addConstraint(Sketcher.Constraint("DistanceX", 1, 2, 1, 1, Q("3.6 mm")))
sketch10.addConstraint(Sketcher.Constraint("DistanceY", 2, 2, -1, 1, Q("37.2 mm")))
sketch10.addConstraint(Sketcher.Constraint("Radius", 2, Q("43.616438 mm")))
pad4 = body.newObject("PartDesign::Pad", "Pad003")
pad4.Profile = sketch10
pad4.Length = 3

# Sketch on XY plane
sketch11 = body.newObject("Sketcher::SketchObject", "Sketch010")
sketch11.AttachmentSupport = (doc.getObject("XY_Plane"), [""])
sketch11.MapMode = "FlatFace"
sketch11.AttachmentOffset = App.Placement(V(0, 0, 1), App.Rotation())
sketch11.addGeometry(Part.LineSegment(V(-30, 16.4, 0), V(-30, 13.4, 0)), False)
sketch11.addGeometry(Part.LineSegment(V(-30, 13.4, 0), V(30, 13.4, 0)), False)
sketch11.addGeometry(Part.LineSegment(V(30, 13.4, 0), V(30, 16.4, 0)), False)
sketch11.addGeometry(Part.LineSegment(V(30, 16.4, 0), V(37.3, 16.4, 0)), False)
sketch11.addGeometry(Part.ArcOfCircle(Part.Circle(V(7.6, 3.3, 0), V(0, 0, 1), 32.5), math.radians(24), math.radians(55)), False)
sketch11.addGeometry(Part.LineSegment(V(26.4, 29.8, 0), V(22.8, 29.8, 0)), False)
sketch11.addGeometry(Part.LineSegment(V(22.8, 29.8, 0), V(11, 25.5, 0)), False)
sketch11.addGeometry(Part.LineSegment(V(11, 25.5, 0), V(-11, 25.5, 0)), False)
sketch11.addGeometry(Part.LineSegment(V(-11, 25.5, 0), V(-22.8, 29.8, 0)), False)
sketch11.addGeometry(Part.LineSegment(V(-22.8, 29.8, 0), V(-26.4, 29.8, 0)), False)
sketch11.addGeometry(Part.ArcOfCircle(Part.Circle(V(-7.6, 3.3, 0), V(0, 0, 1), 32.5), math.radians(125), math.radians(156)), False)
sketch11.addGeometry(Part.LineSegment(V(-37.3, 16.4, 0), V(-30, 16.4, 0)), False)
sketch11.addConstraint(Sketcher.Constraint("Coincident", 0, 2, 1, 1))
sketch11.addConstraint(Sketcher.Constraint("Coincident", 1, 2, 2, 1))
sketch11.addConstraint(Sketcher.Constraint("Coincident", 2, 2, 3, 1))
sketch11.addConstraint(Sketcher.Constraint("Coincident", 3, 2, 4, 1))
sketch11.addConstraint(Sketcher.Constraint("Coincident", 4, 2, 5, 1))
sketch11.addConstraint(Sketcher.Constraint("Coincident", 5, 2, 6, 1))
sketch11.addConstraint(Sketcher.Constraint("Coincident", 6, 2, 7, 1))
sketch11.addConstraint(Sketcher.Constraint("Coincident", 7, 2, 8, 1))
sketch11.addConstraint(Sketcher.Constraint("Coincident", 8, 2, 9, 1))
sketch11.addConstraint(Sketcher.Constraint("Coincident", 9, 2, 10, 1))
sketch11.addConstraint(Sketcher.Constraint("Coincident", 10, 2, 11, 1))
sketch11.addConstraint(Sketcher.Constraint("Coincident", 11, 2, 0, 1))
sketch11.addConstraint(Sketcher.Constraint("Vertical", 0))
sketch11.addConstraint(Sketcher.Constraint("Horizontal", 1))
sketch11.addConstraint(Sketcher.Constraint("Vertical", 2))
sketch11.addConstraint(Sketcher.Constraint("Horizontal", 3))
sketch11.addConstraint(Sketcher.Constraint("Horizontal", 5))
sketch11.addConstraint(Sketcher.Constraint("Horizontal", 7))
sketch11.addConstraint(Sketcher.Constraint("Horizontal", 9))
sketch11.addConstraint(Sketcher.Constraint("Horizontal", 11))
sketch11.addConstraint(Sketcher.Constraint("Equal", 4, 10))
sketch11.addConstraint(Sketcher.Constraint("Symmetric", 4, 3, 10, 3, -2))
sketch11.addConstraint(Sketcher.Constraint("Symmetric", 5, 2, 8, 2, -2))
sketch11.addConstraint(Sketcher.Constraint("Symmetric", 2, 2, 11, 2, -2))
sketch11.addConstraint(Sketcher.Constraint("Equal", 6, 8))
sketch11.addConstraint(Sketcher.Constraint("DistanceX", 1, 1, 1, 2, Q("60 mm")))
sketch11.addConstraint(Sketcher.Constraint("DistanceX", 7, 2, 7, 1, Q("22 mm")))
sketch11.addConstraint(Sketcher.Constraint("DistanceY", 0, 2, 0, 1, Q("3 mm")))
sketch11.addConstraint(Sketcher.Constraint("DistanceX", 5, 2, 5, 1, Q("3.6 mm")))
sketch11.addConstraint(Sketcher.Constraint("DistanceY", -1, 1, 6, 2, Q("25.5 mm")))
sketch11.addConstraint(Sketcher.Constraint("Radius", 4, Q("32.475544 mm")))
sketch11.addConstraint(Sketcher.Constraint("DistanceX", 3, 1, 3, 2, Q("7.299712 mm")))
sketch11.addConstraint(Sketcher.Constraint("DistanceY", -1, 1, 0, 2, Q("13.449298 mm")))
sketch11.addConstraint(Sketcher.Constraint("DistanceX", -1, 1, 4, 2, Q("26.390039 mm")))
sketch11.addConstraint(Sketcher.Constraint("DistanceX", 10, 3, 3, 2, Q("44.91224 mm")))
pocket7 = body.newObject("PartDesign::Pocket", "Pocket006")
pocket7.Profile = sketch11
pocket7.Length = 2
pocket7.Reversed = True

# Sketch on XY plane
sketch12 = body.newObject("Sketcher::SketchObject", "Sketch011")
sketch12.AttachmentSupport = (doc.getObject("XY_Plane"), [""])
sketch12.MapMode = "FlatFace"
sketch12.addGeometry(Part.LineSegment(V(-30, 13, 0), V(-30, -16, 0)), False)
sketch12.addGeometry(Part.LineSegment(V(-30, -16, 0), V(-37, -16, 0)), False)
sketch12.addGeometry(Part.ArcOfCircle(Part.Circle(V(0, 6, 0), V(0, 0, 1), 44), math.radians(-149), math.radians(-31)), False)
sketch12.addGeometry(Part.LineSegment(V(37, -16, 0), V(30, -16, 0)), False)
sketch12.addGeometry(Part.LineSegment(V(30, -16, 0), V(30, 13, 0)), False)
sketch12.addGeometry(Part.LineSegment(V(30, 13, 0), V(-30, 13, 0)), False)
sketch12.addConstraint(Sketcher.Constraint("Coincident", 0, 2, 1, 1))
sketch12.addConstraint(Sketcher.Constraint("Coincident", 1, 2, 2, 1))
sketch12.addConstraint(Sketcher.Constraint("Coincident", 2, 2, 3, 1))
sketch12.addConstraint(Sketcher.Constraint("Coincident", 3, 2, 4, 1))
sketch12.addConstraint(Sketcher.Constraint("Coincident", 4, 2, 5, 1))
sketch12.addConstraint(Sketcher.Constraint("Coincident", 5, 2, 0, 1))
sketch12.addConstraint(Sketcher.Constraint("Vertical", 0))
sketch12.addConstraint(Sketcher.Constraint("Horizontal", 1))
sketch12.addConstraint(Sketcher.Constraint("Horizontal", 3))
sketch12.addConstraint(Sketcher.Constraint("Vertical", 4))
sketch12.addConstraint(Sketcher.Constraint("Horizontal", 5))
sketch12.addConstraint(Sketcher.Constraint("Symmetric", 1, 2, 2, 2, -2))
sketch12.addConstraint(Sketcher.Constraint("Equal", 1, 3))
sketch12.addConstraint(Sketcher.Constraint("DistanceX", 5, 2, 5, 1, Q("60 mm")))
sketch12.addConstraint(Sketcher.Constraint("Radius", 2, Q("43.616438 mm")))
sketch12.addConstraint(Sketcher.Constraint("DistanceX", 1, 2, 1, 1, Q("7.299712 mm")))
sketch12.addConstraint(Sketcher.Constraint("DistanceY", 0, 2, -1, 1, Q("16.449298 mm")))
sketch12.addConstraint(Sketcher.Constraint("DistanceY", -1, 1, 4, 2, Q("13.449298 mm")))
pocket8 = body.newObject("PartDesign::Pocket", "Pocket007")
pocket8.Profile = sketch12
pocket8.Length = 3
pocket8.Reversed = True

# Sketch on XY plane
sketch13 = body.newObject("Sketcher::SketchObject", "Sketch012")
sketch13.AttachmentSupport = (doc.getObject("XY_Plane"), [""])
sketch13.MapMode = "FlatFace"
sketch13.AttachmentOffset = App.Placement(V(0, 0, 1), App.Rotation())
sketch13.addGeometry(Part.Circle(V(-28.6, 23.8, 0), V(0, 0, 1), 1.5), False)
sketch13.addGeometry(Part.Circle(V(28.6, 23.8, 0), V(0, 0, 1), 1.5), False)
sketch13.addConstraint(Sketcher.Constraint("Equal", 0, 1))
sketch13.addConstraint(Sketcher.Constraint("Symmetric", 0, 3, 1, 3, -2))
sketch13.addConstraint(Sketcher.Constraint("Diameter", 0, Q("3 mm")))
sketch13.addConstraint(Sketcher.Constraint("DistanceX", 0, 3, -1, 1, Q("28.590039 mm")))
sketch13.addConstraint(Sketcher.Constraint("DistanceY", -1, 1, 0, 3, Q("23.780264 mm")))
pocket9 = body.newObject("PartDesign::Pocket", "Pocket008")
pocket9.Profile = sketch13
pocket9.Length = 1

# Sketch on XY plane
sketch14 = body.newObject("Sketcher::SketchObject", "Sketch013")
sketch14.AttachmentSupport = (doc.getObject("XY_Plane"), [""])
sketch14.MapMode = "FlatFace"
sketch14.addGeometry(Part.Circle(V(16, 20.5, 0), V(0, 0, 1), 1.5), False)
sketch14.addGeometry(Part.Circle(V(-16, 20.5, 0), V(0, 0, 1), 1.5), False)
sketch14.addConstraint(Sketcher.Constraint("Equal", 0, 1))
sketch14.addConstraint(Sketcher.Constraint("Symmetric", 0, 3, 1, 3, -2))
sketch14.addConstraint(Sketcher.Constraint("Diameter", 0, Q("3 mm")))
sketch14.addConstraint(Sketcher.Constraint("DistanceX", -1, 1, 0, 3, Q("16 mm")))
sketch14.addConstraint(Sketcher.Constraint("DistanceY", -1, 1, 0, 3, Q("20.5 mm")))
pocket10 = body.newObject("PartDesign::Pocket", "Pocket009")
pocket10.Profile = sketch14
pocket10.Length = 10
pocket10.Reversed = True

doc.recompute()
